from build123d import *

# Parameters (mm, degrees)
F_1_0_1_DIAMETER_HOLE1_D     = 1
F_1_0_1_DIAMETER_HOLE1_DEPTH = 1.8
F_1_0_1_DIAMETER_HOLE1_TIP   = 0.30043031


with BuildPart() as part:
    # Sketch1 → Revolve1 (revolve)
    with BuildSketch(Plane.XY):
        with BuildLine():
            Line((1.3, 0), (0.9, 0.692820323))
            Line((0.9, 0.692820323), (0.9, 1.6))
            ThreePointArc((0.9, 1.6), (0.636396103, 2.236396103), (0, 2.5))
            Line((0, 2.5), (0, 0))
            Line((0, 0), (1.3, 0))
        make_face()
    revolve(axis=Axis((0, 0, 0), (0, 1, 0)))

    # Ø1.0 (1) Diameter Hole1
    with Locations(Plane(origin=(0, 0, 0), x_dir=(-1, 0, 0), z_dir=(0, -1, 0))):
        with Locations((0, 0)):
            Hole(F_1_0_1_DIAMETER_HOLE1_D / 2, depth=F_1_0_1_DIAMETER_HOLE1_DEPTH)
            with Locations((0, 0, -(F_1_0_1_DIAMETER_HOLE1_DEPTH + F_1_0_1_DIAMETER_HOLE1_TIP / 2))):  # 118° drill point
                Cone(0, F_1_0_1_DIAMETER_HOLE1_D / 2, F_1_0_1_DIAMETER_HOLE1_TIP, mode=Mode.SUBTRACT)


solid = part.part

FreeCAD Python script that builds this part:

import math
import FreeCAD as App
import Part
import Sketcher
from FreeCAD import Vector
Q = App.Units.Quantity

doc = App.newDocument("Part")
body = doc.addObject("PartDesign::Body", "Body")

# Sketch on XY plane
sketch1 = doc.addObject("Sketcher::SketchObject", "Sketch")
body.addObject(sketch1)
sketch1.AttachmentSupport = (doc.XY_Plane, [""])
sketch1.MapMode = "FlatFace"
sketch1.addGeometry([
    Part.LineSegment(Vector(1.3, 0, 0), Vector(0.9, 0.69282, 0)),  # 0
    Part.LineSegment(Vector(0.9, 0.69282, 0), Vector(0.9, 1.6, 0)),  # 1
    Part.ArcOfCircle(Part.Circle(Vector(0, 1.6, 0), Vector(0, 0, 1), 0.9), math.radians(0), math.radians(90)),  # 2
    Part.LineSegment(Vector(0, 2.5, 0), Vector(0, 0, 0)),  # 3
    Part.LineSegment(Vector(0, 0, 0), Vector(1.3, 0, 0)),  # 4
], False)
sketch1.addConstraint([
    Sketcher.Constraint("Coincident", 0, 2, 1, 1),
    Sketcher.Constraint("Tangent", 1, 2, 2, 1),
    Sketcher.Constraint("Coincident", 2, 2, 3, 1),
    Sketcher.Constraint("Coincident", 3, 2, 4, 1),
    Sketcher.Constraint("Coincident", 4, 2, 0, 1),
    Sketcher.Constraint("Vertical", 1),
    Sketcher.Constraint("Vertical", 3),
    Sketcher.Constraint("Horizontal", 4),
    Sketcher.Constraint("Coincident", 3, 2, -1, 1),
    Sketcher.Constraint("PointOnObject", 2, 3, -2),
    Sketcher.Constraint("Radius", 2, 0.9),
    Sketcher.Constraint("Angle", 0, Q("120 deg")),
    Sketcher.Constraint("DistanceX", 4, 1, 4, 2, 1.3),
    Sketcher.Constraint("DistanceY", 3, 2, 3, 1, 2.5),
])
revolution = doc.addObject("PartDesign::Revolution", "Revolution")
body.addObject(revolution)
revolution.Profile = sketch1
revolution.ReferenceAxis = (sketch1, ["V_Axis"])
revolution.Angle = 360

# Sketch on XZ plane
sketch2 = doc.addObject("Sketcher::SketchObject", "Sketch001")
body.addObject(sketch2)
sketch2.AttachmentSupport = (doc.XZ_Plane, [""])
sketch2.MapMode = "FlatFace"
sketch2.addGeometry(Part.Circle(Vector(0, 0, 0), Vector(0, 0, 1), 0.5), False)
sketch2.addConstraint([
    Sketcher.Constraint("Coincident", 0, 3, -1, 1),
    Sketcher.Constraint("Diameter", 0, 1.0),
])
doc.recompute()
hole = doc.addObject("PartDesign::Hole", "Hole")
body.addObject(hole)
hole.Profile = sketch2
hole.ThreadType = "None"
hole.Diameter = 1
hole.DepthType = "Dimension"
hole.Depth = 1.8
hole.DrillPoint = "Angled"
hole.DrillPointAngle = 118

doc.recompute()
